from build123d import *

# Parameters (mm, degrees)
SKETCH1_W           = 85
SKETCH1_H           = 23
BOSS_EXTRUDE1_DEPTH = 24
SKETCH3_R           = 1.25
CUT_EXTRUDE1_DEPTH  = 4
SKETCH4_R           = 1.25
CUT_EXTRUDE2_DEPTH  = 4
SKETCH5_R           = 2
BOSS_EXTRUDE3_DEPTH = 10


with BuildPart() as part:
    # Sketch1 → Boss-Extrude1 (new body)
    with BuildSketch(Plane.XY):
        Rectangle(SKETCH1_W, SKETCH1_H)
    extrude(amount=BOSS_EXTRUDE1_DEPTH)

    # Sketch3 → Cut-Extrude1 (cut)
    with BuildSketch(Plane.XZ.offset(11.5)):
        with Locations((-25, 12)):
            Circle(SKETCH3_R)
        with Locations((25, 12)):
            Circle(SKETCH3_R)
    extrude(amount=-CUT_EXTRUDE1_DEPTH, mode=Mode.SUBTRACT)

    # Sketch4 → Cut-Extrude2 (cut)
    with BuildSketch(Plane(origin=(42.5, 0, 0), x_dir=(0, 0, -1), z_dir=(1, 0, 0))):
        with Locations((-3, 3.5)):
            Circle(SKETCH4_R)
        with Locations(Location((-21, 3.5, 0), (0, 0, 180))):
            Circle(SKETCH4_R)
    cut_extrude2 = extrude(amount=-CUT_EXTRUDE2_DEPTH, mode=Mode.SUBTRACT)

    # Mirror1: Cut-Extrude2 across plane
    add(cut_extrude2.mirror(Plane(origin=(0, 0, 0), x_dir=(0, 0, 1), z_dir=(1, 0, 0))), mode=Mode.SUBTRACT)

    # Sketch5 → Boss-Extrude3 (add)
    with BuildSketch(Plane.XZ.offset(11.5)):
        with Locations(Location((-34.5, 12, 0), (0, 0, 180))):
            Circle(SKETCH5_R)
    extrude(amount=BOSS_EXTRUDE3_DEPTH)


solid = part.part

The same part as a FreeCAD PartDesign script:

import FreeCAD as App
import Part
import Sketcher
Q = App.Units.Quantity

doc = App.newDocument("Part")
body = doc.addObject("PartDesign::Body", "Body")

# Sketch on XY plane
sketch1 = body.newObject("Sketcher::SketchObject", "Sketch")
sketch1.AttachmentSupport = (doc.getObject("XY_Plane"), [""])
sketch1.MapMode = "FlatFace"
sketch1.addGeometry([
    Part.LineSegment(App.Vector(-42, 12, 0), App.Vector(-42, -12, 0)),
    Part.LineSegment(App.Vector(-42, -12, 0), App.Vector(42, -12, 0)),
    Part.LineSegment(App.Vector(42, -12, 0), App.Vector(42, 12, 0)),
    Part.LineSegment(App.Vector(42, 12, 0), App.Vector(-42, 12, 0)),
], False)
sketch1.addConstraint([
    Sketcher.Constraint("Coincident", 0, 2, 1, 1),
    Sketcher.Constraint("Coincident", 1, 2, 2, 1),
    Sketcher.Constraint("Coincident", 2, 2, 3, 1),
    Sketcher.Constraint("Coincident", 3, 2, 0, 1),
    Sketcher.Constraint("Vertical", 0),
    Sketcher.Constraint("Horizontal", 1),
    Sketcher.Constraint("Vertical", 2),
    Sketcher.Constraint("Horizontal", 3),
    Sketcher.Constraint("Symmetric", 0, 2, 2, 2, -1, 1),
    Sketcher.Constraint("DistanceX", 1, 1, 1, 2, Q("85 mm")),
    Sketcher.Constraint("DistanceY", 0, 2, 0, 1, Q("23 mm")),
])
pad1 = body.newObject("PartDesign::Pad", "Pad")
pad1.Profile = sketch1
pad1.Length = 24

# Sketch on XZ plane
sketch2 = body.newObject("Sketcher::SketchObject", "Sketch001")
sketch2.AttachmentSupport = (doc.getObject("XZ_Plane"), [""])
sketch2.MapMode = "FlatFace"
sketch2.AttachmentOffset = App.Placement(App.Vector(0, 0, 11.5), App.Rotation())
sketch2.addGeometry([
    Part.Circle(App.Vector(-25, 12, 0), App.Vector(0, 0, 1), 1.2),
    Part.Circle(App.Vector(25, 12, 0), App.Vector(0, 0, 1), 1.2),
], False)
sketch2.addConstraint([
    Sketcher.Constraint("Equal", 0, 1),
    Sketcher.Constraint("Symmetric", 0, 3, 1, 3, -2),
    Sketcher.Constraint("Diameter", 0, Q("2.5 mm")),
    Sketcher.Constraint("DistanceX", 0, 3, -1, 1, Q("25 mm")),
    Sketcher.Constraint("DistanceY", -1, 1, 0, 3, Q("12 mm")),
])
pocket1 = body.newObject("PartDesign::Pocket", "Pocket")
pocket1.Profile = sketch2
pocket1.Length = 4

# Sketch on YZ plane
sketch3 = body.newObject("Sketcher::SketchObject", "Sketch002")
sketch3.AttachmentSupport = (doc.getObject("YZ_Plane"), [""])
sketch3.MapMode = "FlatFace"
sketch3.AttachmentOffset = App.Placement(App.Vector(0, 0, 42.5), App.Rotation())
sketch3.addGeometry([
    Part.Circle(App.Vector(3.5, 3, 0), App.Vector(0, 0, 1), 1.2),
    Part.Circle(App.Vector(3.5, 21, 0), App.Vector(0, 0, 1), 1.2),
], False)
sketch3.addConstraint([
    Sketcher.Constraint("Equal", 0, 1),
    Sketcher.Constraint("Vertical", 0, 3, 1, 3),
    Sketcher.Constraint("Diameter", 0, Q("2.5 mm")),
    Sketcher.Constraint("DistanceY", -1, 1, 0, 3, Q("3 mm")),
    Sketcher.Constraint("DistanceY", -1, 1, 1, 3, Q("21 mm")),
    Sketcher.Constraint("DistanceX", -1, 1, 0, 3, Q("3.5 mm")),
])
pocket2 = body.newObject("PartDesign::Pocket", "Pocket001")
pocket2.Profile = sketch3
pocket2.Length = 4
doc.recompute()

mirrored = body.newObject("PartDesign::Mirrored", "Mirrored")
mirrored.Originals = [pocket2]
mirrored.MirrorPlane = (doc.getObject("YZ_Plane"), [""])
body.Tip = mirrored

# Sketch on XZ plane
sketch4 = body.newObject("Sketcher::SketchObject", "Sketch003")
sketch4.AttachmentSupport = (doc.getObject("XZ_Plane"), [""])
sketch4.MapMode = "FlatFace"
sketch4.AttachmentOffset = App.Placement(App.Vector(0, 0, 11.5), App.Rotation())
sketch4.addGeometry(Part.Circle(App.Vector(-34.5, 12, 0), App.Vector(0, 0, 1), 2), False)
sketch4.addConstraint([
    Sketcher.Constraint("Diameter", 0, Q("4 mm")),
    Sketcher.Constraint("DistanceY", -1, 1, 0, 3, Q("12 mm")),
    Sketcher.Constraint("DistanceX", 0, 3, -1, 1, Q("34.5 mm")),
])
pad2 = body.newObject("PartDesign::Pad", "Pad001")
pad2.Profile = sketch4
pad2.Length = 10

doc.recompute()
